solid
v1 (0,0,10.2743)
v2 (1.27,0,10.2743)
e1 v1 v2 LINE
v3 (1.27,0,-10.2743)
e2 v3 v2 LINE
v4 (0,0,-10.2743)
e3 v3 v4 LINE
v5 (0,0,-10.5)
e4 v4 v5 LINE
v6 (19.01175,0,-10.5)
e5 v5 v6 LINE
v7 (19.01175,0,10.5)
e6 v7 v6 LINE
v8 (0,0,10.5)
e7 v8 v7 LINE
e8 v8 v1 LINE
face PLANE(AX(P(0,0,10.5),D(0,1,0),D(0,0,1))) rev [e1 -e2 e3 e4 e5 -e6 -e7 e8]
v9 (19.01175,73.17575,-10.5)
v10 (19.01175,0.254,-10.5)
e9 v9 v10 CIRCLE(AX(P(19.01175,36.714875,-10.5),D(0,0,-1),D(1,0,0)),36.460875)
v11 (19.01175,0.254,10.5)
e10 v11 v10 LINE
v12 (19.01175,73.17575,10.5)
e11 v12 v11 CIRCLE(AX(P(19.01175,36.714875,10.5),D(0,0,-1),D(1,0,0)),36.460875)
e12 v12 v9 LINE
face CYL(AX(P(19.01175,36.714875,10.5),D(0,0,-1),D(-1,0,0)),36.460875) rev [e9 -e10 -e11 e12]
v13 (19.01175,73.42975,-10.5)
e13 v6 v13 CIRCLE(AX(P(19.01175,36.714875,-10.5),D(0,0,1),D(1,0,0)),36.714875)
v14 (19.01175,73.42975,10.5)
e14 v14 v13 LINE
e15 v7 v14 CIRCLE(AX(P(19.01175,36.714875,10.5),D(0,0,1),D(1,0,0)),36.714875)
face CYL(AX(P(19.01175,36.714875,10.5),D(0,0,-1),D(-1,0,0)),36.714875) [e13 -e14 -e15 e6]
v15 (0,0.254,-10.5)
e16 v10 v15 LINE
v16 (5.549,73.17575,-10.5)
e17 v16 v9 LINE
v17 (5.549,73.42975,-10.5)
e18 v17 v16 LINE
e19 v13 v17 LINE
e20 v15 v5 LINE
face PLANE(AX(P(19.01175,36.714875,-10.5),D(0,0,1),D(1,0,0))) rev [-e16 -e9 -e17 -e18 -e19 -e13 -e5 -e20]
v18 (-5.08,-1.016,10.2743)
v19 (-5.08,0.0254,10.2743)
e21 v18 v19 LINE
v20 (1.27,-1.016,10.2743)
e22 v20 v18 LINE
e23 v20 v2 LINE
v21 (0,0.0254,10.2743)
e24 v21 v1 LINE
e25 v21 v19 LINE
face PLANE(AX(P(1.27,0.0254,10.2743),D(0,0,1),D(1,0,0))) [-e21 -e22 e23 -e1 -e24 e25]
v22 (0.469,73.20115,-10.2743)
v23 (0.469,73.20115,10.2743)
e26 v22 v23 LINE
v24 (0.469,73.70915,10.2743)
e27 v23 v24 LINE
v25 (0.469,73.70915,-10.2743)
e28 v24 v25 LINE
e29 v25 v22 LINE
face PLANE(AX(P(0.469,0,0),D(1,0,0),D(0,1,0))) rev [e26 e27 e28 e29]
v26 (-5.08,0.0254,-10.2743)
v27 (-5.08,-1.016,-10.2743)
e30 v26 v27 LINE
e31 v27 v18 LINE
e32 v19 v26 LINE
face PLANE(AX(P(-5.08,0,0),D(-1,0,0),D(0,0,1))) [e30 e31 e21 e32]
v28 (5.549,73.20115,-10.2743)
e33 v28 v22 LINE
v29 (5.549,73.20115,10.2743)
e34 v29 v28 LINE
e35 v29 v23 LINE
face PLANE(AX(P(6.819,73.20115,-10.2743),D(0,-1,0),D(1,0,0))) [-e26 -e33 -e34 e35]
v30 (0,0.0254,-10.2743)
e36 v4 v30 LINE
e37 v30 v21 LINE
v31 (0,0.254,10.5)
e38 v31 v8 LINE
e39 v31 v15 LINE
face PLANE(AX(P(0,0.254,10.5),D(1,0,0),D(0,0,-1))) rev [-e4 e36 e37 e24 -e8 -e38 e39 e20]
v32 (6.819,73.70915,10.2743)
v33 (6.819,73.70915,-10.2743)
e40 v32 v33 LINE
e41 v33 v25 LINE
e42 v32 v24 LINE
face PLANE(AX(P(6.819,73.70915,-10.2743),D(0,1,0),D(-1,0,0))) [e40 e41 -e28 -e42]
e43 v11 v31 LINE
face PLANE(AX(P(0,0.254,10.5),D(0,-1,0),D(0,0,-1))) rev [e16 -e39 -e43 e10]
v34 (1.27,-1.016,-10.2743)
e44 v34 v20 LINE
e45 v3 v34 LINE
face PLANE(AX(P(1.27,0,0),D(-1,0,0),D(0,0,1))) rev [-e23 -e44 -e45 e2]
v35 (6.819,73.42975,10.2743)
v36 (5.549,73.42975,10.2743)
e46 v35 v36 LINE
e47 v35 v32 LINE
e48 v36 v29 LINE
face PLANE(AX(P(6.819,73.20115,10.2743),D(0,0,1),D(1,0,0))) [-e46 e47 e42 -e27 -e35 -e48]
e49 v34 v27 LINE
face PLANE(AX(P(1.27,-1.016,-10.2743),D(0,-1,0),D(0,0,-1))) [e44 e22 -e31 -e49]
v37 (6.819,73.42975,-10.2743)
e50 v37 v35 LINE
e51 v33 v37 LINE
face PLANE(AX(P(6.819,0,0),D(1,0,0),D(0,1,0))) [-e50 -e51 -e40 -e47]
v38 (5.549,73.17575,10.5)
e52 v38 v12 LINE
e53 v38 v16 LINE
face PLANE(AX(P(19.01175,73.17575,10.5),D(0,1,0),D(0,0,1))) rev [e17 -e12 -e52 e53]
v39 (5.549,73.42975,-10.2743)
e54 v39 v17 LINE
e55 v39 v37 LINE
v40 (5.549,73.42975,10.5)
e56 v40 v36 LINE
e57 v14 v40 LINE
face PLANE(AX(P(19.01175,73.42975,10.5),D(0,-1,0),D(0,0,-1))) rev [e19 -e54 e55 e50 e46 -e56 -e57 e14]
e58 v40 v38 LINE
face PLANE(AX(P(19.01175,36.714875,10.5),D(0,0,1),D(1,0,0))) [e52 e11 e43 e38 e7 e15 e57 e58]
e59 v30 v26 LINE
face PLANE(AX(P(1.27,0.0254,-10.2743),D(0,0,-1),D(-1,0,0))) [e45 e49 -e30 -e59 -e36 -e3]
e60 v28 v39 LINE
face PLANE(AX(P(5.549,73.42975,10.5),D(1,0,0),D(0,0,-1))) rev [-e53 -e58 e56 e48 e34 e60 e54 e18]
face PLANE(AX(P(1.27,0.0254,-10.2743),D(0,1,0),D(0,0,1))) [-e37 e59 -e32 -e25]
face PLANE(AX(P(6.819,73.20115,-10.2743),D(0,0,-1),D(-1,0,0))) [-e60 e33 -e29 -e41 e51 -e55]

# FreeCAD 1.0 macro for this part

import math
import FreeCAD as App
import Part
import Sketcher

V = App.Vector
Q = App.Units.Quantity

doc = App.newDocument("Part")
body = doc.addObject("PartDesign::Body", "Body")

# Sketch on XY plane
sketch1 = body.newObject("Sketcher::SketchObject", "Sketch")
sketch1.AttachmentSupport = (doc.getObject("XY_Plane"), [""])
sketch1.MapMode = "FlatFace"
sketch1.addGeometry(Part.LineSegment(V(0, 0, 0), V(19.01175, 0, 0)), False)
sketch1.addGeometry(Part.ArcOfCircle(Part.Circle(V(19.01175, 36.714875, 0), V(0, 0, 1), 36.714875), math.radians(-90), math.radians(90)), False)
sketch1.addGeometry(Part.LineSegment(V(19.01175, 73.42975, 0), V(5.549, 73.42975, 0)), False)
sketch1.addGeometry(Part.LineSegment(V(5.549, 73.42975, 0), V(5.549, 73.17575, 0)), False)
sketch1.addGeometry(Part.LineSegment(V(5.549, 73.17575, 0), V(19.01175, 73.17575, 0)), False)
sketch1.addGeometry(Part.ArcOfCircle(Part.Circle(V(19.01175, 36.714875, 0), V(0, 0, 1), 36.460875), math.radians(-90), math.radians(90)), False)
sketch1.addGeometry(Part.LineSegment(V(19.01175, 0.254, 0), V(0, 0.254, 0)), False)
sketch1.addGeometry(Part.LineSegment(V(0, 0.254, 0), V(0, 0, 0)), False)
sketch1.addConstraint(Sketcher.Constraint("Tangent", 0, 2, 1, 1))
sketch1.addConstraint(Sketcher.Constraint("Tangent", 1, 2, 2, 1))
sketch1.addConstraint(Sketcher.Constraint("Coincident", 2, 2, 3, 1))
sketch1.addConstraint(Sketcher.Constraint("Coincident", 3, 2, 4, 1))
sketch1.addConstraint(Sketcher.Constraint("Tangent", 4, 2, 5, 2))
sketch1.addConstraint(Sketcher.Constraint("Tangent", 5, 1, 6, 1))
sketch1.addConstraint(Sketcher.Constraint("Coincident", 6, 2, 7, 1))
sketch1.addConstraint(Sketcher.Constraint("Coincident", 7, 2, 0, 1))
sketch1.addConstraint(Sketcher.Constraint("Horizontal", 0))
sketch1.addConstraint(Sketcher.Constraint("Horizontal", 2))
sketch1.addConstraint(Sketcher.Constraint("Vertical", 3))
sketch1.addConstraint(Sketcher.Constraint("Horizontal", 4))
sketch1.addConstraint(Sketcher.Constraint("Horizontal", 6))
sketch1.addConstraint(Sketcher.Constraint("Vertical", 7))
sketch1.addConstraint(Sketcher.Constraint("Coincident", 7, 2, -1, 1))
sketch1.addConstraint(Sketcher.Constraint("Coincident", 5, 3, 1, 3))
sketch1.addConstraint(Sketcher.Constraint("DistanceY", 3, 2, 3, 1, Q("0.01 in")))
sketch1.addConstraint(Sketcher.Constraint("Radius", 1, 36.714875))
sketch1.addConstraint(Sketcher.Constraint("DistanceX", 0, 1, 0, 2, 19.01175))
sketch1.addConstraint(Sketcher.Constraint("DistanceX", 2, 2, 2, 1, 13.46275))
pad1 = body.newObject("PartDesign::Pad", "Pad")
pad1.Profile = sketch1
pad1.Length = 21
pad1.Midplane = True

# Sketch on YZ plane
sketch2 = body.newObject("Sketcher::SketchObject", "Sketch001")
sketch2.AttachmentSupport = (doc.getObject("YZ_Plane"), [""])
sketch2.MapMode = "FlatFace"
sketch2.addGeometry(Part.LineSegment(V(0.0254, -10.2743, 0), V(-1.016, -10.2743, 0)), False)
sketch2.addGeometry(Part.LineSegment(V(-1.016, -10.2743, 0), V(-1.016, 10.2743, 0)), False)
sketch2.addGeometry(Part.LineSegment(V(-1.016, 10.2743, 0), V(0.0254, 10.2743, 0)), False)
sketch2.addGeometry(Part.LineSegment(V(0.0254, 10.2743, 0), V(0.0254, -10.2743, 0)), False)
sketch2.addConstraint(Sketcher.Constraint("Coincident", 0, 2, 1, 1))
sketch2.addConstraint(Sketcher.Constraint("Coincident", 1, 2, 2, 1))
sketch2.addConstraint(Sketcher.Constraint("Coincident", 2, 2, 3, 1))
sketch2.addConstraint(Sketcher.Constraint("Coincident", 3, 2, 0, 1))
sketch2.addConstraint(Sketcher.Constraint("Horizontal", 0))
sketch2.addConstraint(Sketcher.Constraint("Vertical", 1))
sketch2.addConstraint(Sketcher.Constraint("Horizontal", 2))
sketch2.addConstraint(Sketcher.Constraint("Vertical", 3))
sketch2.addConstraint(Sketcher.Constraint("DistanceX", 0, 2, 0, 1, Q("0.041 in")))
sketch2.addConstraint(Sketcher.Constraint("DistanceY", 1, 1, 1, 2, Q("0.809 in")))
sketch2.addConstraint(Sketcher.Constraint("DistanceX", 0, 2, -1, 1, Q("0.04 in")))
sketch2.addConstraint(Sketcher.Constraint("DistanceY", 0, 2, -1, 1, Q("0.4045 in")))
pad2 = body.newObject("PartDesign::Pad", "Pad001")
pad2.Profile = sketch2
pad2.Type = "TwoLengths"
pad2.Length = Q("0.2 in")
pad2.Length2 = Q("0.05 in")
pad2.Reversed = True

# Sketch on YZ plane
sketch3 = body.newObject("Sketcher::SketchObject", "Sketch002")
sketch3.AttachmentSupport = (doc.getObject("YZ_Plane"), [""])
sketch3.MapMode = "FlatFace"
sketch3.AttachmentOffset = App.Placement(V(0, 0, 5.549), App.Rotation())
sketch3.addGeometry(Part.LineSegment(V(73.70915, -10.2743, 0), V(73.20115, -10.2743, 0)), False)
sketch3.addGeometry(Part.LineSegment(V(73.20115, -10.2743, 0), V(73.20115, 10.2743, 0)), False)
sketch3.addGeometry(Part.LineSegment(V(73.20115, 10.2743, 0), V(73.70915, 10.2743, 0)), False)
sketch3.addGeometry(Part.LineSegment(V(73.70915, 10.2743, 0), V(73.70915, -10.2743, 0)), False)
sketch3.addConstraint(Sketcher.Constraint("Coincident", 0, 2, 1, 1))
sketch3.addConstraint(Sketcher.Constraint("Coincident", 1, 2, 2, 1))
sketch3.addConstraint(Sketcher.Constraint("Coincident", 2, 2, 3, 1))
sketch3.addConstraint(Sketcher.Constraint("Coincident", 3, 2, 0, 1))
sketch3.addConstraint(Sketcher.Constraint("Horizontal", 0))
sketch3.addConstraint(Sketcher.Constraint("Vertical", 1))
sketch3.addConstraint(Sketcher.Constraint("Horizontal", 2))
sketch3.addConstraint(Sketcher.Constraint("Vertical", 3))
sketch3.addConstraint(Sketcher.Constraint("DistanceX", 0, 2, 0, 1, Q("0.02 in")))
sketch3.addConstraint(Sketcher.Constraint("DistanceY", 1, 1, 1, 2, Q("0.809 in")))
sketch3.addConstraint(Sketcher.Constraint("DistanceY", 0, 2, -1, 1, Q("0.4045 in")))
sketch3.addConstraint(Sketcher.Constraint("DistanceX", -1, 1, 0, 2, 73.20115))
pad3 = body.newObject("PartDesign::Pad", "Pad002")
pad3.Profile = sketch3
pad3.Type = "TwoLengths"
pad3.Length = Q("0.2 in")
pad3.Length2 = Q("0.05 in")
pad3.Reversed = True

doc.recompute()
